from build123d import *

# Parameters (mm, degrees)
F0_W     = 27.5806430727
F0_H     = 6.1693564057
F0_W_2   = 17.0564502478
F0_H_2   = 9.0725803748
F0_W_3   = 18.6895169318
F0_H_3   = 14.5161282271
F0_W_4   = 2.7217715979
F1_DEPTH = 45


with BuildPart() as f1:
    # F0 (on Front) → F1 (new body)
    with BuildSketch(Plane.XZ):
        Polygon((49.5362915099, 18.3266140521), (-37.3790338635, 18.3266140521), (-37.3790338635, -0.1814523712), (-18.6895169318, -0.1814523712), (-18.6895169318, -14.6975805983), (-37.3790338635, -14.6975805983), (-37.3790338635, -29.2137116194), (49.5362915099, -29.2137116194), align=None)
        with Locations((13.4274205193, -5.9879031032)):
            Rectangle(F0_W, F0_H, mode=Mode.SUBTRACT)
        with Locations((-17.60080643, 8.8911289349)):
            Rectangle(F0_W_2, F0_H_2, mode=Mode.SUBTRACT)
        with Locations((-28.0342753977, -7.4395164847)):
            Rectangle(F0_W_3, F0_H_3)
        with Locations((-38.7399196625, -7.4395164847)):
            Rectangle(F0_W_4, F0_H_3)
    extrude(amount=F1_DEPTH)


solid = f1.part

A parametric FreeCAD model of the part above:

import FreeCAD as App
import Part
import Sketcher

V = App.Vector


def add_polygon(sketch, points):
    """Adds a closed chain of lines whose ends are joined by coincident constraints."""
    first, n = sketch.GeometryCount, len(points)
    for a, b in zip(points, points[1:] + points[:1]):
        sketch.addGeometry(Part.LineSegment(App.Vector(*a, 0), App.Vector(*b, 0)), False)
    for i in range(n):
        sketch.addConstraint(Sketcher.Constraint("Coincident", first + i, 2, first + (i + 1) % n, 1))

doc = App.newDocument("Part")
body = doc.addObject("PartDesign::Body", "Body")

sketch1 = body.newObject("Sketcher::SketchObject", "Sketch")
sketch1.AttachmentSupport = (doc.getObject("XZ_Plane"), [""])
sketch1.MapMode = "FlatFace"
add_polygon(sketch1, [(49.536292, 18.326614), (-37.379034, 18.326614), (-37.379034, -0.181452), (-40.100805, -0.181452), (-40.100805, -14.697581), (-37.379034, -14.697581), (-37.379034, -29.213712), (49.536292, -29.213712)])
add_polygon(sketch1, [(27.217742, -9.072581), (-0.362901, -9.072581), (-0.362901, -2.903225), (27.217742, -2.903225)])
add_polygon(sketch1, [(-9.072581, 4.354839), (-26.129032, 4.354839), (-26.129032, 13.427419), (-9.072581, 13.427419)])
sketch1.addConstraint([
    Sketcher.Constraint("Horizontal", 0),
    Sketcher.Constraint("Vertical", 1),
    Sketcher.Constraint("Horizontal", 2),
    Sketcher.Constraint("Vertical", 3),
    Sketcher.Constraint("Horizontal", 4),
    Sketcher.Constraint("Vertical", 5),
    Sketcher.Constraint("Horizontal", 6),
    Sketcher.Constraint("Vertical", 7),
    Sketcher.Constraint("Horizontal", 8),
    Sketcher.Constraint("Vertical", 9),
    Sketcher.Constraint("Horizontal", 10),
    Sketcher.Constraint("Vertical", 11),
    Sketcher.Constraint("Horizontal", 12),
    Sketcher.Constraint("Vertical", 13),
    Sketcher.Constraint("Horizontal", 14),
    Sketcher.Constraint("Vertical", 15),
    Sketcher.Constraint("Vertical", 1, 2, 4, 2),
    Sketcher.Constraint("DistanceY", 8, 2, 14, 2, 22.5),
    Sketcher.Constraint("DistanceY", 4, 2, 8, 2, 5.624999),
    Sketcher.Constraint("DistanceX", 2, 2, 2, 1, 2.721772),
    Sketcher.Constraint("DistanceX", 12, 2, 12, 1, 17.05645),
    Sketcher.Constraint("DistanceY", 3, 2, 3, 1, 14.516128),
    Sketcher.Constraint("DistanceY", 5, 2, 5, 1, 14.516131),
    Sketcher.Constraint("DistanceY", 13, 1, 13, 2, 9.07258),
    Sketcher.Constraint("DistanceX", 8, 2, -1, 1, 0.362901),
    Sketcher.Constraint("DistanceX", 0, 2, 0, 1, 86.915325),
    Sketcher.Constraint("DistanceX", 8, 2, 8, 1, 27.580643),
    Sketcher.Constraint("DistanceY", 1, 2, 1, 1, 18.508066),
    Sketcher.Constraint("DistanceY", 9, 1, 9, 2, 6.169356),
    Sketcher.Constraint("DistanceY", 3, 2, -1, 1, 14.697581),
    Sketcher.Constraint("DistanceX", -1, 1, 6, 2, 49.536292),
    Sketcher.Constraint("DistanceX", 12, 2, -1, 1, 26.129032),
])
pad1 = body.newObject("PartDesign::Pad", "Pad")
pad1.Profile = sketch1
pad1.Length = 45

doc.recompute()
